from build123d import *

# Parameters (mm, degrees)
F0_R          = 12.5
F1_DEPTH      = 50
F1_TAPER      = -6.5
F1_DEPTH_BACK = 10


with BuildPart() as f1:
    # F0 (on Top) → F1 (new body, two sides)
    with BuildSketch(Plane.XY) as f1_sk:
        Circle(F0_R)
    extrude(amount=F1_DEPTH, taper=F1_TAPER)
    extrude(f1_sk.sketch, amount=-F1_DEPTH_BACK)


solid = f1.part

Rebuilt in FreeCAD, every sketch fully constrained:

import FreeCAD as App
import Part
import Sketcher

V = App.Vector
Q = App.Units.Quantity

doc = App.newDocument("Part")
body = doc.addObject("PartDesign::Body", "Body")

sketch1 = body.newObject("Sketcher::SketchObject", "Sketch")
sketch1.AttachmentSupport = (doc.getObject("XY_Plane"), [""])
sketch1.MapMode = "FlatFace"
sketch1.addGeometry(Part.Circle(V(0, 0, 0), V(0, 0, 1), 12.5), False)
sketch1.addConstraint([
    Sketcher.Constraint("Coincident", 0, 3, -1, 1),
    Sketcher.Constraint("Diameter", 0, Q("25 mm")),
])
pad1 = body.newObject("PartDesign::Pad", "Pad")
pad1.Profile = sketch1
pad1.Length = 50
pad1.TaperAngle = 6.5
pad2 = body.newObject("PartDesign::Pad", "Pad001")
pad2.Profile = sketch1
pad2.Length = 10
pad2.Reversed = True

doc.recompute()
